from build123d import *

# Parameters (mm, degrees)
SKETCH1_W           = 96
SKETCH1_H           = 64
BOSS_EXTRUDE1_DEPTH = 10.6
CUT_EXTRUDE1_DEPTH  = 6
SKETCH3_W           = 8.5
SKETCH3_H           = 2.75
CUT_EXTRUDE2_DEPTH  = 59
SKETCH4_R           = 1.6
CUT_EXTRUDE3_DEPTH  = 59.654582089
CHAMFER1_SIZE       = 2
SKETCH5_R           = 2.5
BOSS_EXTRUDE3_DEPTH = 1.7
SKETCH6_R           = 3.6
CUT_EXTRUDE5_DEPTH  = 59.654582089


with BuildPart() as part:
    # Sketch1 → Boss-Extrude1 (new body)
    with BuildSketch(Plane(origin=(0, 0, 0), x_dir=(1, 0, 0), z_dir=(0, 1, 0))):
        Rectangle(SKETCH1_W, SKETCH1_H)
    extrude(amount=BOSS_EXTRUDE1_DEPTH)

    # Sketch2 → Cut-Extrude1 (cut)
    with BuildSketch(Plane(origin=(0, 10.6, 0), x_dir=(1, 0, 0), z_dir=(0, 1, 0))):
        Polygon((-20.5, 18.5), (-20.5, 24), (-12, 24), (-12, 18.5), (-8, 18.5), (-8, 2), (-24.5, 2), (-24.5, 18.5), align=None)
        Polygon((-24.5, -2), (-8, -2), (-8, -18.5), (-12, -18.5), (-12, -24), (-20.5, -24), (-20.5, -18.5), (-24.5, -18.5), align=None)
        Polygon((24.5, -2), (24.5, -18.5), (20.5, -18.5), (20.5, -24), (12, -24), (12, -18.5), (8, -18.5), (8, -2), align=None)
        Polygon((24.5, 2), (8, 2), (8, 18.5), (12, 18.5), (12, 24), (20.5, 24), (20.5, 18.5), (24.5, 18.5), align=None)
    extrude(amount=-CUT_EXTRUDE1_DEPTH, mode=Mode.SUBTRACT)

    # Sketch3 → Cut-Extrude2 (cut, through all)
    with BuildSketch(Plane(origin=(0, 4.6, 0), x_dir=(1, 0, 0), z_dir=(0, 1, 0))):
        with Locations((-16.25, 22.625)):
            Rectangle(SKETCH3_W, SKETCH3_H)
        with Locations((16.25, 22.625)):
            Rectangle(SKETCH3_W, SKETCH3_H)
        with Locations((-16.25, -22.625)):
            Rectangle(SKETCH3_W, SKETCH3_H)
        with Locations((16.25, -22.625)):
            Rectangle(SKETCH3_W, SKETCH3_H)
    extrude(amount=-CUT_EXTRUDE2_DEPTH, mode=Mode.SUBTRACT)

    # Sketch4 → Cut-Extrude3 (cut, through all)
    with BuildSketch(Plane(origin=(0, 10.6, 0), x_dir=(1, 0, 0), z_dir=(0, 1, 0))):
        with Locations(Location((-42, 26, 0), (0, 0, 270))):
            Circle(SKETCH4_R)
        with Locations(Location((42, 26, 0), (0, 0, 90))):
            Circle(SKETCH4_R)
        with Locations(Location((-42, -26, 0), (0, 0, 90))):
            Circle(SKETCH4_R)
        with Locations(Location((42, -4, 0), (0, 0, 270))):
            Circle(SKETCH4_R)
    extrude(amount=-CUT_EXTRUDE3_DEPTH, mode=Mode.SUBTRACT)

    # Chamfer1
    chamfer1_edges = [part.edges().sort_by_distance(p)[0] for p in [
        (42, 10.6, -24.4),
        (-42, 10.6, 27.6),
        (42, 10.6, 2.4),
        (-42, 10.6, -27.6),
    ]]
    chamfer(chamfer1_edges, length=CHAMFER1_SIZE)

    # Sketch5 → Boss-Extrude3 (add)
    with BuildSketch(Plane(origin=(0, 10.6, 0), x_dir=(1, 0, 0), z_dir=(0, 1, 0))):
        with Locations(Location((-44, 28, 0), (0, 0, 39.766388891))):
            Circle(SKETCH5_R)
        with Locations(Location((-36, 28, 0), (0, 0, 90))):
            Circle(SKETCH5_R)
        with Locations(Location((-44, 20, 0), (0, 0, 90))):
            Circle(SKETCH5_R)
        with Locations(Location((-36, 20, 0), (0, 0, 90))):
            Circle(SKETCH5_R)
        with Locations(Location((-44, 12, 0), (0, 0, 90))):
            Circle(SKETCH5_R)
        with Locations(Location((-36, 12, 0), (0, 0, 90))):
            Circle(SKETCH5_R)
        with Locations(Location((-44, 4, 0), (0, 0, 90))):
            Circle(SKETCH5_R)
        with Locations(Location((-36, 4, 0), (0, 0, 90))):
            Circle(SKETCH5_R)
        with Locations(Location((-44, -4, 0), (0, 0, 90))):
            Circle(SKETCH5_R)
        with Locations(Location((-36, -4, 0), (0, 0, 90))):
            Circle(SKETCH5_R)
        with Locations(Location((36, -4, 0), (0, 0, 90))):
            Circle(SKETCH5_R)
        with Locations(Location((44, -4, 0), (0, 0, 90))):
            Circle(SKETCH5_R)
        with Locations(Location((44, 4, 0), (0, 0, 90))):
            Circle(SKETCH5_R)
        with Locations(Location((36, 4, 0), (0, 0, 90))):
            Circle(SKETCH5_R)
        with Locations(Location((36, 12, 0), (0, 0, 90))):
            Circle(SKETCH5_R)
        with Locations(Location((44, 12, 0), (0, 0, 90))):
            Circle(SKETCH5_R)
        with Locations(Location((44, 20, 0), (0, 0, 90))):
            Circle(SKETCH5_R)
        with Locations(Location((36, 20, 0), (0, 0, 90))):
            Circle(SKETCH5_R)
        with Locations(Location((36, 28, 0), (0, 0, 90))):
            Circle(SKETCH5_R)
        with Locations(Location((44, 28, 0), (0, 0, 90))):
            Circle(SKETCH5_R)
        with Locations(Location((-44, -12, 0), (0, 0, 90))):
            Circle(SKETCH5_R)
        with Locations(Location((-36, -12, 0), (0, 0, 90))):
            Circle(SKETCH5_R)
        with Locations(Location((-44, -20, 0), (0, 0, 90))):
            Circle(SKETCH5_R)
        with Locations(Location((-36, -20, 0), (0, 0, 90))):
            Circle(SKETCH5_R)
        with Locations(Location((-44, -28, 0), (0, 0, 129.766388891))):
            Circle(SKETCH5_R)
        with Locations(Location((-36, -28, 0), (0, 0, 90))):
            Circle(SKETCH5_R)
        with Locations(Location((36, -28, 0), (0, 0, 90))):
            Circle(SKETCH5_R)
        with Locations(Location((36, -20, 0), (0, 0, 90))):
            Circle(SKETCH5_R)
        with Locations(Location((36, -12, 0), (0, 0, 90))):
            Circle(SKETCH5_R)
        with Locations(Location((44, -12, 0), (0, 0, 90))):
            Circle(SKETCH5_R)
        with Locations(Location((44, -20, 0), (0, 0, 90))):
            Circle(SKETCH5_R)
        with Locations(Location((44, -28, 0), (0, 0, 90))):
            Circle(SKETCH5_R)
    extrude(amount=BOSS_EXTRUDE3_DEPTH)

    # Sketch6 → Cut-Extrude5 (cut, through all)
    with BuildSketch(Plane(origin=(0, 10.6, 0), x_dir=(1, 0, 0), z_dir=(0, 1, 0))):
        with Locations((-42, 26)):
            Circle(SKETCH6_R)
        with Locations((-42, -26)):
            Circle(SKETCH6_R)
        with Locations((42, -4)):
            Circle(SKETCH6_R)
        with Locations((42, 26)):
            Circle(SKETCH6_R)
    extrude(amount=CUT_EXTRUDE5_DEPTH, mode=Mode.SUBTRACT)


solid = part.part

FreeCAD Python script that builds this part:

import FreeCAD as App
import Part
import Sketcher
from FreeCAD import Vector


def edges_at(feature, points):
    """Names of the edges that pass closest to the given points."""
    edges = feature.Shape.Edges
    near = lambda p: min(range(len(edges)), key=lambda i: edges[i].distToShape(Part.Vertex(*p))[0])
    return sorted({f"Edge{near(p) + 1}" for p in points})


def add_polygon(sketch, points):
    """Adds a closed chain of lines whose ends are joined by coincident constraints."""
    first, n = sketch.GeometryCount, len(points)
    for a, b in zip(points, points[1:] + points[:1]):
        sketch.addGeometry(Part.LineSegment(App.Vector(*a, 0), App.Vector(*b, 0)), False)
    for i in range(n):
        sketch.addConstraint(Sketcher.Constraint("Coincident", first + i, 2, first + (i + 1) % n, 1))

doc = App.newDocument("Part")
params = doc.addObject("Spreadsheet::Sheet", "Params")
for row, (alias, value) in enumerate([
    ("sketch1_width", "96 mm"),
    ("sketch1_height", "64 mm"),
    ("pad1_length", "10.6 mm"),
    ("sketch2_width", "4 mm"),
    ("sketch2_width2", "16.5 mm"),
    ("sketch2_height", "5.5 mm"),
    ("pocket1_length", "6 mm"),
    ("sketch3_width", "8.5 mm"),
    ("sketch3_height", "2.75 mm"),
    ("sketch4_diameter", "3.2 mm"),
    ("chamfer_size", "2 mm"),
    ("sketch5_diameter", "5 mm"),
    ("pad2_length", "1.7 mm"),
    ("sketch6_diameter", "7.2 mm"),
], start=1):
    params.set(f"A{row}", alias)
    params.set(f"B{row}", "=" + value)
    params.setAlias(f"B{row}", alias)

body = doc.addObject("PartDesign::Body", "Body")

# Sketch on XZ plane
sketch1 = doc.addObject("Sketcher::SketchObject", "Sketch")
body.addObject(sketch1)
sketch1.AttachmentSupport = (doc.XZ_Plane, [""])
sketch1.MapMode = "FlatFace"
add_polygon(sketch1, [(-48, -32), (-48, 32), (48, 32), (48, -32)])  # lines 0-3
sketch1.addConstraint([
    Sketcher.Constraint("Vertical", 0),
    Sketcher.Constraint("Horizontal", 1),
    Sketcher.Constraint("Vertical", 2),
    Sketcher.Constraint("Horizontal", 3),
    Sketcher.Constraint("Symmetric", 0, 2, 2, 2, -1, 1),
    Sketcher.Constraint("DistanceX", 1, 1, 1, 2, 96.0),
    Sketcher.Constraint("DistanceY", 0, 1, 0, 2, 64.0),
])
sketch1.setExpression("Constraints[9]", "Params.sketch1_width")
sketch1.setExpression("Constraints[10]", "Params.sketch1_height")
pad1 = doc.addObject("PartDesign::Pad", "Pad")
body.addObject(pad1)
pad1.Profile = sketch1
pad1.setExpression("Length", "Params.pad1_length")
pad1.Reversed = True

# Sketch on XZ plane
sketch2 = doc.addObject("Sketcher::SketchObject", "Sketch001")
body.addObject(sketch2)
sketch2.AttachmentSupport = (doc.XZ_Plane, [""])
sketch2.MapMode = "FlatFace"
sketch2.AttachmentOffset = App.Placement(Vector(0, 0, -10.6), App.Rotation())
add_polygon(sketch2, [(-20.5, -24), (-20.5, -18.5), (-24.5, -18.5), (-24.5, -2), (-8, -2), (-8, -18.5), (-12, -18.5), (-12, -24)])  # lines 0-7
add_polygon(sketch2, [(-8, 2), (-24.5, 2), (-24.5, 18.5), (-20.5, 18.5), (-20.5, 24), (-12, 24), (-12, 18.5), (-8, 18.5)])  # lines 8-15
add_polygon(sketch2, [(24.5, 18.5), (24.5, 2), (8, 2), (8, 18.5), (12, 18.5), (12, 24), (20.5, 24), (20.5, 18.5)])  # lines 16-23
add_polygon(sketch2, [(8, -2), (24.5, -2), (24.5, -18.5), (20.5, -18.5), (20.5, -24), (12, -24), (12, -18.5), (8, -18.5)])  # lines 24-31
sketch2.addConstraint([
    Sketcher.Constraint("Vertical", 0),
    Sketcher.Constraint("Horizontal", 1),
    Sketcher.Constraint("Vertical", 2),
    Sketcher.Constraint("Horizontal", 3),
    Sketcher.Constraint("Vertical", 4),
    Sketcher.Constraint("Horizontal", 5),
    Sketcher.Constraint("Vertical", 6),
    Sketcher.Constraint("Horizontal", 7),
    Sketcher.Constraint("Horizontal", 8),
    Sketcher.Constraint("Vertical", 9),
    Sketcher.Constraint("Horizontal", 10),
    Sketcher.Constraint("Vertical", 11),
    Sketcher.Constraint("Horizontal", 12),
    Sketcher.Constraint("Vertical", 13),
    Sketcher.Constraint("Horizontal", 14),
    Sketcher.Constraint("Vertical", 15),
    Sketcher.Constraint("Vertical", 16),
    Sketcher.Constraint("Horizontal", 17),
    Sketcher.Constraint("Vertical", 18),
    Sketcher.Constraint("Horizontal", 19),
    Sketcher.Constraint("Vertical", 20),
    Sketcher.Constraint("Horizontal", 21),
    Sketcher.Constraint("Vertical", 22),
    Sketcher.Constraint("Horizontal", 23),
    Sketcher.Constraint("Horizontal", 24),
    Sketcher.Constraint("Vertical", 25),
    Sketcher.Constraint("Horizontal", 26),
    Sketcher.Constraint("Vertical", 27),
    Sketcher.Constraint("Horizontal", 28),
    Sketcher.Constraint("Vertical", 29),
    Sketcher.Constraint("Horizontal", 30),
    Sketcher.Constraint("Vertical", 31),
    Sketcher.Constraint("Symmetric", 2, 2, 16, 2, -1, 1),
    Sketcher.Constraint("Symmetric", 4, 2, 18, 2, -1, 1),
    Sketcher.Constraint("Symmetric", 6, 2, 20, 2, -1, 1),
    Sketcher.Constraint("Symmetric", 0, 2, 22, 2, -1, 1),
    Sketcher.Constraint("Symmetric", 8, 2, 24, 2, -1, 1),
    Sketcher.Constraint("Symmetric", 10, 2, 26, 2, -1, 1),
    Sketcher.Constraint("Symmetric", 12, 2, 28, 2, -1, 1),
    Sketcher.Constraint("Symmetric", 14, 2, 30, 2, -1, 1),
    Sketcher.Constraint("Symmetric", 8, 2, 16, 2, -2),
    Sketcher.Constraint("Symmetric", 14, 2, 18, 2, -2),
    Sketcher.Constraint("Symmetric", 12, 2, 20, 2, -2),
    Sketcher.Constraint("Symmetric", 10, 2, 22, 2, -2),
    Sketcher.Constraint("Horizontal", 1, 2, 4, 2),
    Sketcher.Constraint("Equal", 1, 5),
    Sketcher.Constraint("Equal", 24, 2),
    Sketcher.Constraint("DistanceX", 1, 2, 1, 1, 4.0),
    Sketcher.Constraint("DistanceX", 3, 1, 3, 2, 16.5),
    Sketcher.Constraint("DistanceY", 0, 1, 0, 2, 5.5),
    Sketcher.Constraint("DistanceY", 2, 2, -1, 1, 2.0),
    Sketcher.Constraint("DistanceX", 3, 2, -1, 1, 8.0),
])
sketch2.setExpression("Constraints[79]", "Params.sketch2_width")
sketch2.setExpression("Constraints[80]", "Params.sketch2_width2")
sketch2.setExpression("Constraints[81]", "Params.sketch2_height")
pocket1 = doc.addObject("PartDesign::Pocket", "Pocket")
body.addObject(pocket1)
pocket1.Profile = sketch2
pocket1.setExpression("Length", "Params.pocket1_length")
pocket1.Reversed = True

# Sketch on XZ plane
sketch3 = doc.addObject("Sketcher::SketchObject", "Sketch002")
body.addObject(sketch3)
sketch3.AttachmentSupport = (doc.XZ_Plane, [""])
sketch3.MapMode = "FlatFace"
sketch3.AttachmentOffset = App.Placement(Vector(0, 0, -4.6), App.Rotation())
add_polygon(sketch3, [(-20.5, -24), (-20.5, -21.2), (-12, -21.2), (-12, -24)])  # lines 0-3
add_polygon(sketch3, [(12, -24), (12, -21.2), (20.5, -21.2), (20.5, -24)])  # lines 4-7
add_polygon(sketch3, [(-20.5, 21.2), (-20.5, 24), (-12, 24), (-12, 21.2)])  # lines 8-11
add_polygon(sketch3, [(12, 21.2), (12, 24), (20.5, 24), (20.5, 21.2)])  # lines 12-15
sketch3.addConstraint([
    Sketcher.Constraint("Vertical", 0),
    Sketcher.Constraint("Horizontal", 1),
    Sketcher.Constraint("Vertical", 2),
    Sketcher.Constraint("Horizontal", 3),
    Sketcher.Constraint("Vertical", 4),
    Sketcher.Constraint("Horizontal", 5),
    Sketcher.Constraint("Vertical", 6),
    Sketcher.Constraint("Horizontal", 7),
    Sketcher.Constraint("Vertical", 8),
    Sketcher.Constraint("Horizontal", 9),
    Sketcher.Constraint("Vertical", 10),
    Sketcher.Constraint("Horizontal", 11),
    Sketcher.Constraint("Vertical", 12),
    Sketcher.Constraint("Horizontal", 13),
    Sketcher.Constraint("Vertical", 14),
    Sketcher.Constraint("Horizontal", 15),
    Sketcher.Constraint("Symmetric", 6, 2, 8, 2, -1, 1),
    Sketcher.Constraint("Symmetric", 4, 2, 10, 2, -1, 1),
    Sketcher.Constraint("Symmetric", 2, 2, 12, 2, -1, 1),
    Sketcher.Constraint("Symmetric", 0, 2, 14, 2, -1, 1),
    Sketcher.Constraint("Symmetric", 1, 2, 4, 2, -2),
    Sketcher.Constraint("Symmetric", 3, 2, 6, 2, -2),
    Sketcher.Constraint("DistanceX", 1, 1, 1, 2, 8.5),
    Sketcher.Constraint("DistanceX", 1, 2, -1, 1, 12.0),
    Sketcher.Constraint("DistanceY", 2, 2, -1, 1, 24.0),
    Sketcher.Constraint("DistanceY", 0, 1, 0, 2, 2.75),
])
sketch3.setExpression("Constraints[38]", "Params.sketch3_width")
sketch3.setExpression("Constraints[41]", "Params.sketch3_height")
pocket2 = doc.addObject("PartDesign::Pocket", "Pocket001")
body.addObject(pocket2)
pocket2.Profile = sketch3
pocket2.Type = "ThroughAll"
pocket2.Reversed = True

# Sketch on XZ plane
sketch4 = doc.addObject("Sketcher::SketchObject", "Sketch003")
body.addObject(sketch4)
sketch4.AttachmentSupport = (doc.XZ_Plane, [""])
sketch4.MapMode = "FlatFace"
sketch4.AttachmentOffset = App.Placement(Vector(0, 0, -10.6), App.Rotation())
sketch4.addGeometry([
    Part.Circle(Vector(-42, -26, 0), Vector(0, 0, 1), 1.6),
    Part.Circle(Vector(42, -26, 0), Vector(0, 0, 1), 1.6),
    Part.Circle(Vector(-42, 26, 0), Vector(0, 0, 1), 1.6),
    Part.Circle(Vector(42, 4, 0), Vector(0, 0, 1), 1.6),
], False)
sketch4.addConstraint([
    Sketcher.Constraint("Equal", 0, 1),
    Sketcher.Constraint("Equal", 1, 2),
    Sketcher.Constraint("Equal", 2, 3),
    Sketcher.Constraint("Symmetric", 1, 3, 2, 3, -1, 1),
    Sketcher.Constraint("Symmetric", 0, 3, 1, 3, -2),
    Sketcher.Constraint("Vertical", 1, 3, 3, 3),
    Sketcher.Constraint("Diameter", 0, 3.2),
    Sketcher.Constraint("DistanceX", 0, 3, -1, 1, 42.0),
    Sketcher.Constraint("DistanceY", 0, 3, -1, 1, 26.0),
    Sketcher.Constraint("DistanceY", -1, 1, 3, 3, 4.0),
])
sketch4.setExpression("Constraints[6]", "Params.sketch4_diameter")
pocket3 = doc.addObject("PartDesign::Pocket", "Pocket002")
body.addObject(pocket3)
pocket3.Profile = sketch4
pocket3.Type = "ThroughAll"
pocket3.Reversed = True
doc.recompute()

chamfer = doc.addObject("PartDesign::Chamfer", "Chamfer")
body.addObject(chamfer)
chamfer.Base = (pocket3, edges_at(pocket3, [
    (42, 10.6, -24.4),
    (-42, 10.6, 27.6),
    (42, 10.6, 2.4),
    (-42, 10.6, -27.6),
]))
chamfer.setExpression("Size", "Params.chamfer_size")

# Sketch on XZ plane
sketch5 = doc.addObject("Sketcher::SketchObject", "Sketch004")
body.addObject(sketch5)
sketch5.AttachmentSupport = (doc.XZ_Plane, [""])
sketch5.MapMode = "FlatFace"
sketch5.AttachmentOffset = App.Placement(Vector(0, 0, -10.6), App.Rotation())
sketch5.addGeometry([
    Part.Circle(Vector(-44, -28, 0), Vector(0, 0, 1), 2.5),  # 0
    Part.Circle(Vector(-36, -28, 0), Vector(0, 0, 1), 2.5),  # 1
    Part.Circle(Vector(-44, -20, 0), Vector(0, 0, 1), 2.5),  # 2
    Part.Circle(Vector(-36, -20, 0), Vector(0, 0, 1), 2.5),  # 3
    Part.Circle(Vector(-44, -12, 0), Vector(0, 0, 1), 2.5),  # 4
    Part.Circle(Vector(-36, -12, 0), Vector(0, 0, 1), 2.5),  # 5
    Part.Circle(Vector(-44, -4, 0), Vector(0, 0, 1), 2.5),  # 6
    Part.Circle(Vector(-36, -4, 0), Vector(0, 0, 1), 2.5),  # 7
    Part.Circle(Vector(-44, 4, 0), Vector(0, 0, 1), 2.5),  # 8
    Part.Circle(Vector(-36, 4, 0), Vector(0, 0, 1), 2.5),  # 9
    Part.Circle(Vector(36, 4, 0), Vector(0, 0, 1), 2.5),  # 10
    Part.Circle(Vector(44, 4, 0), Vector(0, 0, 1), 2.5),  # 11
    Part.Circle(Vector(44, -4, 0), Vector(0, 0, 1), 2.5),  # 12
    Part.Circle(Vector(36, -4, 0), Vector(0, 0, 1), 2.5),  # 13
    Part.Circle(Vector(36, -12, 0), Vector(0, 0, 1), 2.5),  # 14
    Part.Circle(Vector(44, -12, 0), Vector(0, 0, 1), 2.5),  # 15
    Part.Circle(Vector(44, -20, 0), Vector(0, 0, 1), 2.5),  # 16
    Part.Circle(Vector(36, -20, 0), Vector(0, 0, 1), 2.5),  # 17
    Part.Circle(Vector(36, -28, 0), Vector(0, 0, 1), 2.5),  # 18
    Part.Circle(Vector(44, -28, 0), Vector(0, 0, 1), 2.5),  # 19
    Part.Circle(Vector(-44, 12, 0), Vector(0, 0, 1), 2.5),  # 20
    Part.Circle(Vector(-36, 12, 0), Vector(0, 0, 1), 2.5),  # 21
    Part.Circle(Vector(-44, 20, 0), Vector(0, 0, 1), 2.5),  # 22
    Part.Circle(Vector(-36, 20, 0), Vector(0, 0, 1), 2.5),  # 23
    Part.Circle(Vector(-44, 28, 0), Vector(0, 0, 1), 2.5),  # 24
    Part.Circle(Vector(-36, 28, 0), Vector(0, 0, 1), 2.5),  # 25
    Part.Circle(Vector(36, 28, 0), Vector(0, 0, 1), 2.5),  # 26
    Part.Circle(Vector(36, 20, 0), Vector(0, 0, 1), 2.5),  # 27
    Part.Circle(Vector(36, 12, 0), Vector(0, 0, 1), 2.5),  # 28
    Part.Circle(Vector(44, 12, 0), Vector(0, 0, 1), 2.5),  # 29
    Part.Circle(Vector(44, 20, 0), Vector(0, 0, 1), 2.5),  # 30
    Part.Circle(Vector(44, 28, 0), Vector(0, 0, 1), 2.5),  # 31
], False)
sketch5.addConstraint([
    Sketcher.Constraint("Equal", 0, 1),
    Sketcher.Constraint("Equal", 1, 2),
    Sketcher.Constraint("Equal", 2, 3),
    Sketcher.Constraint("Equal", 3, 4),
    Sketcher.Constraint("Equal", 4, 5),
    Sketcher.Constraint("Equal", 5, 6),
    Sketcher.Constraint("Equal", 6, 7),
    Sketcher.Constraint("Equal", 7, 8),
    Sketcher.Constraint("Equal", 8, 9),
    Sketcher.Constraint("Equal", 9, 10),
    Sketcher.Constraint("Equal", 10, 11),
    Sketcher.Constraint("Equal", 11, 12),
    Sketcher.Constraint("Equal", 12, 13),
    Sketcher.Constraint("Equal", 13, 14),
    Sketcher.Constraint("Equal", 14, 15),
    Sketcher.Constraint("Equal", 15, 16),
    Sketcher.Constraint("Equal", 16, 17),
    Sketcher.Constraint("Equal", 17, 18),
    Sketcher.Constraint("Equal", 18, 19),
    Sketcher.Constraint("Equal", 19, 20),
    Sketcher.Constraint("Equal", 20, 21),
    Sketcher.Constraint("Equal", 21, 22),
    Sketcher.Constraint("Equal", 22, 23),
    Sketcher.Constraint("Equal", 23, 24),
    Sketcher.Constraint("Equal", 24, 25),
    Sketcher.Constraint("Equal", 25, 26),
    Sketcher.Constraint("Equal", 26, 27),
    Sketcher.Constraint("Equal", 27, 28),
    Sketcher.Constraint("Equal", 28, 29),
    Sketcher.Constraint("Equal", 29, 30),
    Sketcher.Constraint("Equal", 30, 31),
    Sketcher.Constraint("Symmetric", 7, 3, 10, 3, -1, 1),
    Sketcher.Constraint("Symmetric", 6, 3, 11, 3, -1, 1),
    Sketcher.Constraint("Symmetric", 8, 3, 12, 3, -1, 1),
    Sketcher.Constraint("Symmetric", 9, 3, 13, 3, -1, 1),
    Sketcher.Constraint("Symmetric", 15, 3, 20, 3, -1, 1),
    Sketcher.Constraint("Symmetric", 14, 3, 21, 3, -1, 1),
    Sketcher.Constraint("Symmetric", 16, 3, 22, 3, -1, 1),
    Sketcher.Constraint("Symmetric", 17, 3, 23, 3, -1, 1),
    Sketcher.Constraint("Symmetric", 19, 3, 24, 3, -1, 1),
    Sketcher.Constraint("Symmetric", 18, 3, 25, 3, -1, 1),
    Sketcher.Constraint("Symmetric", 1, 3, 26, 3, -1, 1),
    Sketcher.Constraint("Symmetric", 3, 3, 27, 3, -1, 1),
    Sketcher.Constraint("Symmetric", 5, 3, 28, 3, -1, 1),
    Sketcher.Constraint("Symmetric", 4, 3, 29, 3, -1, 1),
    Sketcher.Constraint("Symmetric", 2, 3, 30, 3, -1, 1),
    Sketcher.Constraint("Symmetric", 0, 3, 31, 3, -1, 1),
    Sketcher.Constraint("Symmetric", 9, 3, 10, 3, -2),
    Sketcher.Constraint("Symmetric", 8, 3, 11, 3, -2),
    Sketcher.Constraint("Symmetric", 5, 3, 14, 3, -2),
    Sketcher.Constraint("Symmetric", 4, 3, 15, 3, -2),
    Sketcher.Constraint("Symmetric", 2, 3, 16, 3, -2),
    Sketcher.Constraint("Symmetric", 3, 3, 17, 3, -2),
    Sketcher.Constraint("Symmetric", 1, 3, 18, 3, -2),
    Sketcher.Constraint("Symmetric", 0, 3, 19, 3, -2),
    Sketcher.Constraint("Horizontal", 0, 3, 1, 3),
    Sketcher.Constraint("Horizontal", 2, 3, 3, 3),
    Sketcher.Constraint("Horizontal", 4, 3, 5, 3),
    Sketcher.Constraint("Horizontal", 6, 3, 7, 3),
    Sketcher.Constraint("Vertical", 0, 3, 2, 3),
    Sketcher.Constraint("Vertical", 1, 3, 3, 3),
    Sketcher.Constraint("Vertical", 2, 3, 4, 3),
    Sketcher.Constraint("Vertical", 3, 3, 5, 3),
    Sketcher.Constraint("Vertical", 4, 3, 6, 3),
    Sketcher.Constraint("Vertical", 5, 3, 7, 3),
    Sketcher.Constraint("Diameter", 0, 5.0),
    Sketcher.Constraint("DistanceX", 0, 3, -1, 1, 44.0),
    Sketcher.Constraint("DistanceY", 0, 3, -1, 1, 28.0),
    Sketcher.Constraint("DistanceX", 1, 3, -1, 1, 36.0),
    Sketcher.Constraint("DistanceY", 2, 3, -1, 1, 20.0),
    Sketcher.Constraint("DistanceY", 4, 3, -1, 1, 12.0),
    Sketcher.Constraint("DistanceY", 6, 3, -1, 1, 4.0),
])
sketch5.setExpression("Constraints[65]", "Params.sketch5_diameter")
pad2 = doc.addObject("PartDesign::Pad", "Pad001")
body.addObject(pad2)
pad2.Profile = sketch5
pad2.setExpression("Length", "Params.pad2_length")
pad2.Reversed = True

# Sketch on XZ plane
sketch6 = doc.addObject("Sketcher::SketchObject", "Sketch005")
body.addObject(sketch6)
sketch6.AttachmentSupport = (doc.XZ_Plane, [""])
sketch6.MapMode = "FlatFace"
sketch6.AttachmentOffset = App.Placement(Vector(0, 0, -10.6), App.Rotation())
sketch6.addGeometry([
    Part.Circle(Vector(-42, -26, 0), Vector(0, 0, 1), 3.6),
    Part.Circle(Vector(-42, 26, 0), Vector(0, 0, 1), 3.6),
    Part.Circle(Vector(42, 4, 0), Vector(0, 0, 1), 3.6),
    Part.Circle(Vector(42, -26, 0), Vector(0, 0, 1), 3.6),
], False)
sketch6.addConstraint([
    Sketcher.Constraint("Equal", 0, 1),
    Sketcher.Constraint("Equal", 1, 2),
    Sketcher.Constraint("Equal", 2, 3),
    Sketcher.Constraint("Symmetric", 1, 3, 3, 3, -1, 1),
    Sketcher.Constraint("Symmetric", 0, 3, 3, 3, -2),
    Sketcher.Constraint("Vertical", 2, 3, 3, 3),
    Sketcher.Constraint("Diameter", 0, 7.2),
    Sketcher.Constraint("DistanceX", 0, 3, -1, 1, 42.0),
    Sketcher.Constraint("DistanceY", 0, 3, -1, 1, 26.0),
    Sketcher.Constraint("DistanceY", -1, 1, 2, 3, 4.0),
])
sketch6.setExpression("Constraints[6]", "Params.sketch6_diameter")
pocket4 = doc.addObject("PartDesign::Pocket", "Pocket003")
body.addObject(pocket4)
pocket4.Profile = sketch6
pocket4.Type = "ThroughAll"

doc.recompute()
